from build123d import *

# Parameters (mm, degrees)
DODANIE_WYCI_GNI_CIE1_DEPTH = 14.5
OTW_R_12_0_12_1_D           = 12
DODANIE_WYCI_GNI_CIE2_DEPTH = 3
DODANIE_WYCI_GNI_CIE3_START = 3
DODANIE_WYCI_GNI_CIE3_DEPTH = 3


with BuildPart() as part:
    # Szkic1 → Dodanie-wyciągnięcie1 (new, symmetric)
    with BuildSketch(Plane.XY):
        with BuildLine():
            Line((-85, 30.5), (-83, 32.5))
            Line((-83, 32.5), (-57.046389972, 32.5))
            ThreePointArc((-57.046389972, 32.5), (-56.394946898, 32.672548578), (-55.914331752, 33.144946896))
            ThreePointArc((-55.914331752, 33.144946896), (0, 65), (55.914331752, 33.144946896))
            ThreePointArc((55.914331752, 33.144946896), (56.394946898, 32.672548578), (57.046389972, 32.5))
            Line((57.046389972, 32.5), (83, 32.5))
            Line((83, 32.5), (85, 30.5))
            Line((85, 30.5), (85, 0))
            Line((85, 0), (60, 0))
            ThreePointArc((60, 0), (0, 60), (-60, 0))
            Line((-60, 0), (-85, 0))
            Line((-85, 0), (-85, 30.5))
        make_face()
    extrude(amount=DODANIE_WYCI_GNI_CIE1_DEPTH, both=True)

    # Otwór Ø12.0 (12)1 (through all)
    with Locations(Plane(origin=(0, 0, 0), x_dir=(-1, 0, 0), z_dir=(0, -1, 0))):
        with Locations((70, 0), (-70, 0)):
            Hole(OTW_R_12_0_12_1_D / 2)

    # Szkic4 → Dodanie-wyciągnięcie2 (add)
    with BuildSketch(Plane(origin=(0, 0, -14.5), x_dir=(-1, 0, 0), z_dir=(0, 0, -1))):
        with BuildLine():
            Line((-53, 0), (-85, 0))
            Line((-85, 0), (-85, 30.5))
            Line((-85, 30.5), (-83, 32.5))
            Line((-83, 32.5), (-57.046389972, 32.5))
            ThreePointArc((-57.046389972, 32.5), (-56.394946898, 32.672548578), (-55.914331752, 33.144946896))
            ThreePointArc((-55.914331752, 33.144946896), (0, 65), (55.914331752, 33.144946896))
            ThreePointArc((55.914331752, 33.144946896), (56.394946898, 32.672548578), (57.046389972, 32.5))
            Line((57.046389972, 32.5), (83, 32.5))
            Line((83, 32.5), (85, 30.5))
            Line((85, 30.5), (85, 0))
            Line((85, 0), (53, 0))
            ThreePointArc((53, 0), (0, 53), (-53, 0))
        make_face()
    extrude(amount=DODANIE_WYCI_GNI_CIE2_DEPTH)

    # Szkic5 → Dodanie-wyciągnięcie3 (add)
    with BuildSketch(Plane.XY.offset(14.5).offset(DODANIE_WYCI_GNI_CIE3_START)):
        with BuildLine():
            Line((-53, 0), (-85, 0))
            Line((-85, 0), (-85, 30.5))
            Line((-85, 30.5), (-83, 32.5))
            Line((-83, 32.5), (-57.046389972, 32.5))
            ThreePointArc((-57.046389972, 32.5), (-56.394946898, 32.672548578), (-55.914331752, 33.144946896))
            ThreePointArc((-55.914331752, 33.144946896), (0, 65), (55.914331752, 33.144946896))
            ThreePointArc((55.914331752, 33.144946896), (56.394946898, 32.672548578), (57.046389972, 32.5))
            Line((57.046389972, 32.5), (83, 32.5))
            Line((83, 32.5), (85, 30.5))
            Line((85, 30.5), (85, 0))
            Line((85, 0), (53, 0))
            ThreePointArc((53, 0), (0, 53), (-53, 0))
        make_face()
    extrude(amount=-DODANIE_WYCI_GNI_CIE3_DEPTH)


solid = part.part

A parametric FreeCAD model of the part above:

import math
import FreeCAD as App
import Part
import Sketcher

doc = App.newDocument("Part")
body = doc.addObject("PartDesign::Body", "Body")

# Sketch on XY plane
sketch1 = body.newObject("Sketcher::SketchObject", "Sketch")
sketch1.AttachmentSupport = (doc.getObject("XY_Plane"), [""])
sketch1.MapMode = "FlatFace"
sketch1.addGeometry([
    Part.LineSegment(App.Vector(-83, 32.5, 0), App.Vector(-85, 30.5, 0)),  # 0
    Part.LineSegment(App.Vector(-85, 30.5, 0), App.Vector(-85, 0, 0)),  # 1
    Part.LineSegment(App.Vector(-85, 0, 0), App.Vector(-60, 0, 0)),  # 2
    Part.ArcOfCircle(Part.Circle(App.Vector(0, 0, 0), App.Vector(0, 0, 1), 60), math.radians(0), math.radians(180)),  # 3
    Part.LineSegment(App.Vector(60, 0, 0), App.Vector(85, 0, 0)),  # 4
    Part.LineSegment(App.Vector(85, 0, 0), App.Vector(85, 30.5, 0)),  # 5
    Part.LineSegment(App.Vector(85, 30.5, 0), App.Vector(83, 32.5, 0)),  # 6
    Part.LineSegment(App.Vector(83, 32.5, 0), App.Vector(57, 32.5, 0)),  # 7
    Part.ArcOfCircle(Part.Circle(App.Vector(57, 33.8, 0), App.Vector(0, 0, 1), 1.3), math.radians(-149), math.radians(-90)),  # 8
    Part.ArcOfCircle(Part.Circle(App.Vector(0, 0, 0), App.Vector(0, 0, 1), 65), math.radians(31), math.radians(149)),  # 9
    Part.ArcOfCircle(Part.Circle(App.Vector(-57, 33.8, 0), App.Vector(0, 0, 1), 1.3), math.radians(-90), math.radians(-31)),  # 10
    Part.LineSegment(App.Vector(-57, 32.5, 0), App.Vector(-83, 32.5, 0)),  # 11
], False)
sketch1.addConstraint([
    Sketcher.Constraint("Coincident", 0, 2, 1, 1),
    Sketcher.Constraint("Coincident", 1, 2, 2, 1),
    Sketcher.Constraint("Coincident", 2, 2, 3, 2),
    Sketcher.Constraint("Coincident", 3, 1, 4, 1),
    Sketcher.Constraint("Coincident", 4, 2, 5, 1),
    Sketcher.Constraint("Coincident", 5, 2, 6, 1),
    Sketcher.Constraint("Coincident", 6, 2, 7, 1),
    Sketcher.Constraint("Tangent", 7, 2, 8, 2),
    Sketcher.Constraint("Tangent", 8, 1, 9, 1),
    Sketcher.Constraint("Tangent", 9, 2, 10, 2),
    Sketcher.Constraint("Tangent", 10, 1, 11, 1),
    Sketcher.Constraint("Coincident", 11, 2, 0, 1),
    Sketcher.Constraint("Vertical", 1),
    Sketcher.Constraint("Horizontal", 2),
    Sketcher.Constraint("Horizontal", 4),
    Sketcher.Constraint("Vertical", 5),
    Sketcher.Constraint("Horizontal", 7),
    Sketcher.Constraint("Horizontal", 11),
    Sketcher.Constraint("Coincident", 3, 3, -1, 1),
    Sketcher.Constraint("Coincident", 9, 3, -1, 1),
    Sketcher.Constraint("Equal", 8, 10),
    Sketcher.Constraint("Symmetric", 1, 2, 4, 2, -1, 1),
    Sketcher.Constraint("Symmetric", 6, 2, 11, 2, -2),
    Sketcher.Constraint("PointOnObject", 1, 2, -1),
    Sketcher.Constraint("Perpendicular", 0, 6),
    Sketcher.Constraint("Horizontal", 0, 2, 5, 2),
    Sketcher.Constraint("Radius", 3, 60.0),
    Sketcher.Constraint("Radius", 9, 65.0),
    Sketcher.Constraint("DistanceX", 2, 1, 2, 2, 25.0),
    Sketcher.Constraint("DistanceY", 1, 2, 1, 1, 30.5),
    Sketcher.Constraint("DistanceX", -1, 1, 6, 2, 83.0),
    Sketcher.Constraint("Radius", 8, 1.316009),
])
pad1 = body.newObject("PartDesign::Pad", "Pad")
pad1.Profile = sketch1
pad1.Length = 29
pad1.Midplane = True

# Sketch on XZ plane
sketch2 = body.newObject("Sketcher::SketchObject", "Sketch001")
sketch2.AttachmentSupport = (doc.getObject("XZ_Plane"), [""])
sketch2.MapMode = "FlatFace"
sketch2.addGeometry([
    Part.Circle(App.Vector(-70, 0, 0), App.Vector(0, 0, 1), 6),
    Part.Circle(App.Vector(70, 0, 0), App.Vector(0, 0, 1), 6),
], False)
sketch2.addConstraint([
    Sketcher.Constraint("Equal", 0, 1),
    Sketcher.Constraint("Symmetric", 0, 3, 1, 3, -1, 1),
    Sketcher.Constraint("PointOnObject", 0, 3, -1),
    Sketcher.Constraint("Diameter", 0, 12.0),
    Sketcher.Constraint("DistanceX", 0, 3, -1, 1, 70.0),
])
doc.recompute()
hole = body.newObject("PartDesign::Hole", "Hole")
hole.Profile = sketch2
hole.ThreadType = "None"
hole.Diameter = 12
hole.DepthType = "ThroughAll"

# Sketch on XY plane
sketch3 = body.newObject("Sketcher::SketchObject", "Sketch002")
sketch3.AttachmentSupport = (doc.getObject("XY_Plane"), [""])
sketch3.MapMode = "FlatFace"
sketch3.AttachmentOffset = App.Placement(App.Vector(0, 0, -14.5), App.Rotation())
sketch3.addGeometry([
    Part.LineSegment(App.Vector(85, 0, 0), App.Vector(53, 0, 0)),  # 0
    Part.ArcOfCircle(Part.Circle(App.Vector(0, 0, 0), App.Vector(0, 0, 1), 53), math.radians(0), math.radians(180)),  # 1
    Part.LineSegment(App.Vector(-53, 0, 0), App.Vector(-85, 0, 0)),  # 2
    Part.LineSegment(App.Vector(-85, 0, 0), App.Vector(-85, 30.5, 0)),  # 3
    Part.LineSegment(App.Vector(-85, 30.5, 0), App.Vector(-83, 32.5, 0)),  # 4
    Part.LineSegment(App.Vector(-83, 32.5, 0), App.Vector(-57, 32.5, 0)),  # 5
    Part.ArcOfCircle(Part.Circle(App.Vector(-57, 33.8, 0), App.Vector(0, 0, 1), 1.3), math.radians(-90), math.radians(-31)),  # 6
    Part.ArcOfCircle(Part.Circle(App.Vector(0, 0, 0), App.Vector(0, 0, 1), 65), math.radians(31), math.radians(149)),  # 7
    Part.ArcOfCircle(Part.Circle(App.Vector(57, 33.8, 0), App.Vector(0, 0, 1), 1.3), math.radians(-149), math.radians(-90)),  # 8
    Part.LineSegment(App.Vector(57, 32.5, 0), App.Vector(83, 32.5, 0)),  # 9
    Part.LineSegment(App.Vector(83, 32.5, 0), App.Vector(85, 30.5, 0)),  # 10
    Part.LineSegment(App.Vector(85, 30.5, 0), App.Vector(85, 0, 0)),  # 11
], False)
sketch3.addConstraint([
    Sketcher.Constraint("Coincident", 0, 2, 1, 1),
    Sketcher.Constraint("Coincident", 1, 2, 2, 1),
    Sketcher.Constraint("Coincident", 2, 2, 3, 1),
    Sketcher.Constraint("Coincident", 3, 2, 4, 1),
    Sketcher.Constraint("Coincident", 4, 2, 5, 1),
    Sketcher.Constraint("Tangent", 5, 2, 6, 1),
    Sketcher.Constraint("Tangent", 6, 2, 7, 2),
    Sketcher.Constraint("Tangent", 7, 1, 8, 1),
    Sketcher.Constraint("Tangent", 8, 2, 9, 1),
    Sketcher.Constraint("Coincident", 9, 2, 10, 1),
    Sketcher.Constraint("Coincident", 10, 2, 11, 1),
    Sketcher.Constraint("Coincident", 11, 2, 0, 1),
    Sketcher.Constraint("Horizontal", 0),
    Sketcher.Constraint("Horizontal", 2),
    Sketcher.Constraint("Vertical", 3),
    Sketcher.Constraint("Horizontal", 5),
    Sketcher.Constraint("Horizontal", 9),
    Sketcher.Constraint("Vertical", 11),
    Sketcher.Constraint("Coincident", 1, 3, -1, 1),
    Sketcher.Constraint("Coincident", 7, 3, -1, 1),
    Sketcher.Constraint("Equal", 6, 8),
    Sketcher.Constraint("Symmetric", 2, 2, 11, 2, -1, 1),
    Sketcher.Constraint("Symmetric", 4, 2, 9, 2, -2),
    Sketcher.Constraint("PointOnObject", 0, 2, -1),
    Sketcher.Constraint("Perpendicular", 4, 10),
    Sketcher.Constraint("Horizontal", 3, 2, 10, 2),
    Sketcher.Constraint("Radius", 1, 53.0),
    Sketcher.Constraint("Radius", 7, 65.0),
    Sketcher.Constraint("DistanceX", 0, 2, 0, 1, 32.0),
    Sketcher.Constraint("DistanceY", 3, 1, 3, 2, 30.5),
    Sketcher.Constraint("DistanceX", 4, 2, -1, 1, 83.0),
    Sketcher.Constraint("Radius", 6, 1.316009),
])
pad2 = body.newObject("PartDesign::Pad", "Pad001")
pad2.Profile = sketch3
pad2.Length = 3
pad2.Reversed = True

# Sketch on XY plane
sketch4 = body.newObject("Sketcher::SketchObject", "Sketch003")
sketch4.AttachmentSupport = (doc.getObject("XY_Plane"), [""])
sketch4.MapMode = "FlatFace"
sketch4.AttachmentOffset = App.Placement(App.Vector(0, 0, 17.5), App.Rotation())
sketch4.addGeometry([
    Part.LineSegment(App.Vector(-85, 0, 0), App.Vector(-53, 0, 0)),  # 0
    Part.ArcOfCircle(Part.Circle(App.Vector(0, 0, 0), App.Vector(0, 0, 1), 53), math.radians(0), math.radians(180)),  # 1
    Part.LineSegment(App.Vector(53, 0, 0), App.Vector(85, 0, 0)),  # 2
    Part.LineSegment(App.Vector(85, 0, 0), App.Vector(85, 30.5, 0)),  # 3
    Part.LineSegment(App.Vector(85, 30.5, 0), App.Vector(83, 32.5, 0)),  # 4
    Part.LineSegment(App.Vector(83, 32.5, 0), App.Vector(57, 32.5, 0)),  # 5
    Part.ArcOfCircle(Part.Circle(App.Vector(57, 33.8, 0), App.Vector(0, 0, 1), 1.3), math.radians(-149), math.radians(-90)),  # 6
    Part.ArcOfCircle(Part.Circle(App.Vector(0, 0, 0), App.Vector(0, 0, 1), 65), math.radians(31), math.radians(149)),  # 7
    Part.ArcOfCircle(Part.Circle(App.Vector(-57, 33.8, 0), App.Vector(0, 0, 1), 1.3), math.radians(-90), math.radians(-31)),  # 8
    Part.LineSegment(App.Vector(-57, 32.5, 0), App.Vector(-83, 32.5, 0)),  # 9
    Part.LineSegment(App.Vector(-83, 32.5, 0), App.Vector(-85, 30.5, 0)),  # 10
    Part.LineSegment(App.Vector(-85, 30.5, 0), App.Vector(-85, 0, 0)),  # 11
], False)
sketch4.addConstraint([
    Sketcher.Constraint("Coincident", 0, 2, 1, 2),
    Sketcher.Constraint("Coincident", 1, 1, 2, 1),
    Sketcher.Constraint("Coincident", 2, 2, 3, 1),
    Sketcher.Constraint("Coincident", 3, 2, 4, 1),
    Sketcher.Constraint("Coincident", 4, 2, 5, 1),
    Sketcher.Constraint("Tangent", 5, 2, 6, 2),
    Sketcher.Constraint("Tangent", 6, 1, 7, 1),
    Sketcher.Constraint("Tangent", 7, 2, 8, 2),
    Sketcher.Constraint("Tangent", 8, 1, 9, 1),
    Sketcher.Constraint("Coincident", 9, 2, 10, 1),
    Sketcher.Constraint("Coincident", 10, 2, 11, 1),
    Sketcher.Constraint("Coincident", 11, 2, 0, 1),
    Sketcher.Constraint("Horizontal", 0),
    Sketcher.Constraint("Horizontal", 2),
    Sketcher.Constraint("Vertical", 3),
    Sketcher.Constraint("Horizontal", 5),
    Sketcher.Constraint("Horizontal", 9),
    Sketcher.Constraint("Vertical", 11),
    Sketcher.Constraint("Coincident", 1, 3, -1, 1),
    Sketcher.Constraint("Coincident", 7, 3, -1, 1),
    Sketcher.Constraint("Equal", 6, 8),
    Sketcher.Constraint("Symmetric", 2, 2, 11, 2, -1, 1),
    Sketcher.Constraint("Symmetric", 4, 2, 9, 2, -2),
    Sketcher.Constraint("PointOnObject", 0, 2, -1),
    Sketcher.Constraint("Perpendicular", 4, 10),
    Sketcher.Constraint("Horizontal", 3, 2, 10, 2),
    Sketcher.Constraint("Radius", 1, 53.0),
    Sketcher.Constraint("Radius", 7, 65.0),
    Sketcher.Constraint("DistanceX", 0, 1, 0, 2, 32.0),
    Sketcher.Constraint("DistanceY", 3, 1, 3, 2, 30.5),
    Sketcher.Constraint("DistanceX", -1, 1, 4, 2, 83.0),
    Sketcher.Constraint("Radius", 6, 1.316009),
])
pad3 = body.newObject("PartDesign::Pad", "Pad002")
pad3.Profile = sketch4
pad3.Length = 3
pad3.Reversed = True

doc.recompute()
